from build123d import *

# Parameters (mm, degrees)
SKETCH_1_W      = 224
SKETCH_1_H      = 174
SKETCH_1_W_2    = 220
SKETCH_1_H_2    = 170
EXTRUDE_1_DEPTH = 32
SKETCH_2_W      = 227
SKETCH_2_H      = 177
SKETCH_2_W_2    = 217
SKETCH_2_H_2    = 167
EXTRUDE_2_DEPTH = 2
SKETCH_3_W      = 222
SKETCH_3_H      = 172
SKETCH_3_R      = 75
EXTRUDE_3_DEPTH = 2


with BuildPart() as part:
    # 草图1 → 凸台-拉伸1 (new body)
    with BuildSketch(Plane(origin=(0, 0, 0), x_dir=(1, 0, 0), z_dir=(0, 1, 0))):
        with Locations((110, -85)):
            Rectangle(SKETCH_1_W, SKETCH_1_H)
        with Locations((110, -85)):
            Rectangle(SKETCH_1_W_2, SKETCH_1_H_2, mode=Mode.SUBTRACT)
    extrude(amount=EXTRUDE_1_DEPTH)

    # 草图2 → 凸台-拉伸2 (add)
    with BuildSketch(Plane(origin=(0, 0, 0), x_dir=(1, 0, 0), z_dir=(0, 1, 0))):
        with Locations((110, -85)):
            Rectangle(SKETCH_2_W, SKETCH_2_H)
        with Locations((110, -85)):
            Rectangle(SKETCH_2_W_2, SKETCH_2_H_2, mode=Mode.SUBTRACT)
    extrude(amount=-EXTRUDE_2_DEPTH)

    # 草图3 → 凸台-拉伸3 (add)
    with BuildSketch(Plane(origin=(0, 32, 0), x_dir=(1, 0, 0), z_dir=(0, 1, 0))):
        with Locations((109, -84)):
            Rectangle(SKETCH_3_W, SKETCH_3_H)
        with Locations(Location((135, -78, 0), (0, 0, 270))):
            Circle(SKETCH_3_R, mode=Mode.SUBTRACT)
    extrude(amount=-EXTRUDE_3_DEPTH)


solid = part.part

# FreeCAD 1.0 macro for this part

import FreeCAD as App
import Part
import Sketcher
Q = App.Units.Quantity

doc = App.newDocument("Part")
body = doc.addObject("PartDesign::Body", "Body")

# Sketch on XZ plane
sketch1 = body.newObject("Sketcher::SketchObject", "Sketch")
sketch1.AttachmentSupport = (doc.getObject("XZ_Plane"), [""])
sketch1.MapMode = "FlatFace"
sketch1.addGeometry([
    Part.LineSegment(App.Vector(-2, -2, 0), App.Vector(-2, 172, 0)),  # 0
    Part.LineSegment(App.Vector(-2, 172, 0), App.Vector(222, 172, 0)),  # 1
    Part.LineSegment(App.Vector(222, 172, 0), App.Vector(222, -2, 0)),  # 2
    Part.LineSegment(App.Vector(222, -2, 0), App.Vector(-2, -2, 0)),  # 3
    Part.LineSegment(App.Vector(220, 170, 0), App.Vector(0, 170, 0)),  # 4
    Part.LineSegment(App.Vector(0, 170, 0), App.Vector(0, 0, 0)),  # 5
    Part.LineSegment(App.Vector(0, 0, 0), App.Vector(220, 0, 0)),  # 6
    Part.LineSegment(App.Vector(220, 0, 0), App.Vector(220, 170, 0)),  # 7
], False)
sketch1.addConstraint([
    Sketcher.Constraint("Coincident", 0, 2, 1, 1),
    Sketcher.Constraint("Coincident", 1, 2, 2, 1),
    Sketcher.Constraint("Coincident", 2, 2, 3, 1),
    Sketcher.Constraint("Coincident", 3, 2, 0, 1),
    Sketcher.Constraint("Coincident", 4, 2, 5, 1),
    Sketcher.Constraint("Coincident", 5, 2, 6, 1),
    Sketcher.Constraint("Coincident", 6, 2, 7, 1),
    Sketcher.Constraint("Coincident", 7, 2, 4, 1),
    Sketcher.Constraint("Vertical", 0),
    Sketcher.Constraint("Horizontal", 1),
    Sketcher.Constraint("Vertical", 2),
    Sketcher.Constraint("Horizontal", 3),
    Sketcher.Constraint("Horizontal", 4),
    Sketcher.Constraint("Vertical", 5),
    Sketcher.Constraint("Horizontal", 6),
    Sketcher.Constraint("Vertical", 7),
    Sketcher.Constraint("Coincident", 5, 2, -1, 1),
    Sketcher.Constraint("DistanceX", 1, 1, 1, 2, Q("224 mm")),
    Sketcher.Constraint("DistanceX", 4, 2, 4, 1, Q("220 mm")),
    Sketcher.Constraint("DistanceY", 0, 1, 0, 2, Q("174 mm")),
    Sketcher.Constraint("DistanceY", 5, 2, 5, 1, Q("170 mm")),
    Sketcher.Constraint("DistanceX", 0, 2, -1, 1, Q("2 mm")),
    Sketcher.Constraint("DistanceY", -1, 1, 0, 2, Q("172 mm")),
])
pad1 = body.newObject("PartDesign::Pad", "Pad")
pad1.Profile = sketch1
pad1.Length = 32
pad1.Reversed = True

# Sketch on XZ plane
sketch2 = body.newObject("Sketcher::SketchObject", "Sketch001")
sketch2.AttachmentSupport = (doc.getObject("XZ_Plane"), [""])
sketch2.MapMode = "FlatFace"
sketch2.addGeometry([
    Part.LineSegment(App.Vector(-4, -4, 0), App.Vector(-4, 174, 0)),  # 0
    Part.LineSegment(App.Vector(-4, 174, 0), App.Vector(224, 174, 0)),  # 1
    Part.LineSegment(App.Vector(224, 174, 0), App.Vector(224, -4, 0)),  # 2
    Part.LineSegment(App.Vector(224, -4, 0), App.Vector(-4, -4, 0)),  # 3
    Part.LineSegment(App.Vector(218, 168, 0), App.Vector(2, 168, 0)),  # 4
    Part.LineSegment(App.Vector(2, 168, 0), App.Vector(2, 2, 0)),  # 5
    Part.LineSegment(App.Vector(2, 2, 0), App.Vector(218, 2, 0)),  # 6
    Part.LineSegment(App.Vector(218, 2, 0), App.Vector(218, 168, 0)),  # 7
], False)
sketch2.addConstraint([
    Sketcher.Constraint("Coincident", 0, 2, 1, 1),
    Sketcher.Constraint("Coincident", 1, 2, 2, 1),
    Sketcher.Constraint("Coincident", 2, 2, 3, 1),
    Sketcher.Constraint("Coincident", 3, 2, 0, 1),
    Sketcher.Constraint("Coincident", 4, 2, 5, 1),
    Sketcher.Constraint("Coincident", 5, 2, 6, 1),
    Sketcher.Constraint("Coincident", 6, 2, 7, 1),
    Sketcher.Constraint("Coincident", 7, 2, 4, 1),
    Sketcher.Constraint("Vertical", 0),
    Sketcher.Constraint("Horizontal", 1),
    Sketcher.Constraint("Vertical", 2),
    Sketcher.Constraint("Horizontal", 3),
    Sketcher.Constraint("Horizontal", 4),
    Sketcher.Constraint("Vertical", 5),
    Sketcher.Constraint("Horizontal", 6),
    Sketcher.Constraint("Vertical", 7),
    Sketcher.Constraint("DistanceX", 1, 1, 1, 2, Q("227 mm")),
    Sketcher.Constraint("DistanceX", 4, 2, 4, 1, Q("217 mm")),
    Sketcher.Constraint("DistanceY", 0, 1, 0, 2, Q("177 mm")),
    Sketcher.Constraint("DistanceY", 5, 2, 5, 1, Q("167 mm")),
    Sketcher.Constraint("DistanceX", 0, 2, 4, 2, Q("5 mm")),
    Sketcher.Constraint("DistanceY", 4, 2, 0, 2, Q("5 mm")),
    Sketcher.Constraint("DistanceX", 0, 2, -1, 1, Q("3.5 mm")),
    Sketcher.Constraint("DistanceY", -1, 1, 0, 2, Q("173.5 mm")),
])
pad2 = body.newObject("PartDesign::Pad", "Pad001")
pad2.Profile = sketch2
pad2.Length = 2

# Sketch on XZ plane
sketch3 = body.newObject("Sketcher::SketchObject", "Sketch002")
sketch3.AttachmentSupport = (doc.getObject("XZ_Plane"), [""])
sketch3.MapMode = "FlatFace"
sketch3.AttachmentOffset = App.Placement(App.Vector(0, 0, -32), App.Rotation())
sketch3.addGeometry([
    Part.LineSegment(App.Vector(-2, -2, 0), App.Vector(-2, 170, 0)),  # 0
    Part.LineSegment(App.Vector(-2, 170, 0), App.Vector(220, 170, 0)),  # 1
    Part.LineSegment(App.Vector(220, 170, 0), App.Vector(220, -2, 0)),  # 2
    Part.LineSegment(App.Vector(220, -2, 0), App.Vector(-2, -2, 0)),  # 3
    Part.Circle(App.Vector(135, 78, 0), App.Vector(0, 0, 1), 75),  # 4
], False)
sketch3.addConstraint([
    Sketcher.Constraint("Coincident", 0, 2, 1, 1),
    Sketcher.Constraint("Coincident", 1, 2, 2, 1),
    Sketcher.Constraint("Coincident", 2, 2, 3, 1),
    Sketcher.Constraint("Coincident", 3, 2, 0, 1),
    Sketcher.Constraint("Vertical", 0),
    Sketcher.Constraint("Horizontal", 1),
    Sketcher.Constraint("Vertical", 2),
    Sketcher.Constraint("Horizontal", 3),
    Sketcher.Constraint("Diameter", 4, Q("150 mm")),
    Sketcher.Constraint("DistanceX", 1, 1, 1, 2, Q("222 mm")),
    Sketcher.Constraint("DistanceY", 0, 1, 0, 2, Q("172 mm")),
    Sketcher.Constraint("DistanceX", -1, 1, 4, 3, Q("135 mm")),
    Sketcher.Constraint("DistanceY", -1, 1, 4, 3, Q("78 mm")),
    Sketcher.Constraint("DistanceX", 0, 2, -1, 1, Q("2 mm")),
    Sketcher.Constraint("DistanceY", -1, 1, 0, 2, Q("170 mm")),
])
pad3 = body.newObject("PartDesign::Pad", "Pad002")
pad3.Profile = sketch3
pad3.Length = 2

doc.recompute()
